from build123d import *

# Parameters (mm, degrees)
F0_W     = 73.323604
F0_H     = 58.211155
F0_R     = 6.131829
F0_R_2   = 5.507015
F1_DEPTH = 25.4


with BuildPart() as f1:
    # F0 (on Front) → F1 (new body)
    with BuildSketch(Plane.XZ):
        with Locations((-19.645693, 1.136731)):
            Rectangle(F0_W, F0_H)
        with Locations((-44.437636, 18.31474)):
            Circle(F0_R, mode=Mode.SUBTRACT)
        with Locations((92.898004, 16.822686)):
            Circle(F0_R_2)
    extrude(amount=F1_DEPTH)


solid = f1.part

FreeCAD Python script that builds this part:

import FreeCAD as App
import Part
import Sketcher

V = App.Vector
Q = App.Units.Quantity

doc = App.newDocument("Part")
body = doc.addObject("PartDesign::Body", "Body")
body.AllowCompound = True

sketch1 = doc.addObject("Sketcher::SketchObject", "Sketch")
body.addObject(sketch1)
sketch1.AttachmentSupport = (doc.XZ_Plane, [""])
sketch1.MapMode = "FlatFace"
sketch1.addGeometry([
    Part.LineSegment(V(-56, 30, 0), V(-56, -28, 0)),
    Part.LineSegment(V(-56, -28, 0), V(17, -28, 0)),
    Part.LineSegment(V(17, -28, 0), V(17, 30, 0)),
    Part.LineSegment(V(17, 30, 0), V(-56, 30, 0)),
    Part.Circle(V(-44, 18, 0), V(0, 0, 1), 6),
    Part.Circle(V(93, 17, 0), V(0, 0, 1), 6),
], False)
sketch1.addConstraint([
    Sketcher.Constraint("Coincident", 0, 2, 1, 1),
    Sketcher.Constraint("Coincident", 1, 2, 2, 1),
    Sketcher.Constraint("Coincident", 2, 2, 3, 1),
    Sketcher.Constraint("Coincident", 3, 2, 0, 1),
    Sketcher.Constraint("Vertical", 0),
    Sketcher.Constraint("Horizontal", 1),
    Sketcher.Constraint("Vertical", 2),
    Sketcher.Constraint("Horizontal", 3),
    Sketcher.Constraint("Diameter", 5, Q("11.01403 mm")),
    Sketcher.Constraint("Diameter", 4, Q("12.263658 mm")),
    Sketcher.Constraint("DistanceX", 0, 2, 5, 3, Q("149.205499 mm")),
    Sketcher.Constraint("DistanceX", 1, 1, 1, 2, Q("73.323604 mm")),
    Sketcher.Constraint("DistanceY", 0, 2, 0, 1, Q("58.211155 mm")),
    Sketcher.Constraint("DistanceY", -1, 1, 4, 3, Q("18.31474 mm")),
    Sketcher.Constraint("DistanceX", -1, 1, 1, 2, Q("17.016109 mm")),
    Sketcher.Constraint("DistanceY", -1, 1, 2, 2, Q("30.242309 mm")),
    Sketcher.Constraint("DistanceX", 4, 3, 5, 3, Q("137.33564 mm")),
    Sketcher.Constraint("DistanceY", -1, 1, 5, 3, Q("16.822686 mm")),
])
pad1 = doc.addObject("PartDesign::Pad", "Pad")
body.addObject(pad1)
pad1.Profile = sketch1
pad1.Length = Q("1 in")

doc.recompute()
